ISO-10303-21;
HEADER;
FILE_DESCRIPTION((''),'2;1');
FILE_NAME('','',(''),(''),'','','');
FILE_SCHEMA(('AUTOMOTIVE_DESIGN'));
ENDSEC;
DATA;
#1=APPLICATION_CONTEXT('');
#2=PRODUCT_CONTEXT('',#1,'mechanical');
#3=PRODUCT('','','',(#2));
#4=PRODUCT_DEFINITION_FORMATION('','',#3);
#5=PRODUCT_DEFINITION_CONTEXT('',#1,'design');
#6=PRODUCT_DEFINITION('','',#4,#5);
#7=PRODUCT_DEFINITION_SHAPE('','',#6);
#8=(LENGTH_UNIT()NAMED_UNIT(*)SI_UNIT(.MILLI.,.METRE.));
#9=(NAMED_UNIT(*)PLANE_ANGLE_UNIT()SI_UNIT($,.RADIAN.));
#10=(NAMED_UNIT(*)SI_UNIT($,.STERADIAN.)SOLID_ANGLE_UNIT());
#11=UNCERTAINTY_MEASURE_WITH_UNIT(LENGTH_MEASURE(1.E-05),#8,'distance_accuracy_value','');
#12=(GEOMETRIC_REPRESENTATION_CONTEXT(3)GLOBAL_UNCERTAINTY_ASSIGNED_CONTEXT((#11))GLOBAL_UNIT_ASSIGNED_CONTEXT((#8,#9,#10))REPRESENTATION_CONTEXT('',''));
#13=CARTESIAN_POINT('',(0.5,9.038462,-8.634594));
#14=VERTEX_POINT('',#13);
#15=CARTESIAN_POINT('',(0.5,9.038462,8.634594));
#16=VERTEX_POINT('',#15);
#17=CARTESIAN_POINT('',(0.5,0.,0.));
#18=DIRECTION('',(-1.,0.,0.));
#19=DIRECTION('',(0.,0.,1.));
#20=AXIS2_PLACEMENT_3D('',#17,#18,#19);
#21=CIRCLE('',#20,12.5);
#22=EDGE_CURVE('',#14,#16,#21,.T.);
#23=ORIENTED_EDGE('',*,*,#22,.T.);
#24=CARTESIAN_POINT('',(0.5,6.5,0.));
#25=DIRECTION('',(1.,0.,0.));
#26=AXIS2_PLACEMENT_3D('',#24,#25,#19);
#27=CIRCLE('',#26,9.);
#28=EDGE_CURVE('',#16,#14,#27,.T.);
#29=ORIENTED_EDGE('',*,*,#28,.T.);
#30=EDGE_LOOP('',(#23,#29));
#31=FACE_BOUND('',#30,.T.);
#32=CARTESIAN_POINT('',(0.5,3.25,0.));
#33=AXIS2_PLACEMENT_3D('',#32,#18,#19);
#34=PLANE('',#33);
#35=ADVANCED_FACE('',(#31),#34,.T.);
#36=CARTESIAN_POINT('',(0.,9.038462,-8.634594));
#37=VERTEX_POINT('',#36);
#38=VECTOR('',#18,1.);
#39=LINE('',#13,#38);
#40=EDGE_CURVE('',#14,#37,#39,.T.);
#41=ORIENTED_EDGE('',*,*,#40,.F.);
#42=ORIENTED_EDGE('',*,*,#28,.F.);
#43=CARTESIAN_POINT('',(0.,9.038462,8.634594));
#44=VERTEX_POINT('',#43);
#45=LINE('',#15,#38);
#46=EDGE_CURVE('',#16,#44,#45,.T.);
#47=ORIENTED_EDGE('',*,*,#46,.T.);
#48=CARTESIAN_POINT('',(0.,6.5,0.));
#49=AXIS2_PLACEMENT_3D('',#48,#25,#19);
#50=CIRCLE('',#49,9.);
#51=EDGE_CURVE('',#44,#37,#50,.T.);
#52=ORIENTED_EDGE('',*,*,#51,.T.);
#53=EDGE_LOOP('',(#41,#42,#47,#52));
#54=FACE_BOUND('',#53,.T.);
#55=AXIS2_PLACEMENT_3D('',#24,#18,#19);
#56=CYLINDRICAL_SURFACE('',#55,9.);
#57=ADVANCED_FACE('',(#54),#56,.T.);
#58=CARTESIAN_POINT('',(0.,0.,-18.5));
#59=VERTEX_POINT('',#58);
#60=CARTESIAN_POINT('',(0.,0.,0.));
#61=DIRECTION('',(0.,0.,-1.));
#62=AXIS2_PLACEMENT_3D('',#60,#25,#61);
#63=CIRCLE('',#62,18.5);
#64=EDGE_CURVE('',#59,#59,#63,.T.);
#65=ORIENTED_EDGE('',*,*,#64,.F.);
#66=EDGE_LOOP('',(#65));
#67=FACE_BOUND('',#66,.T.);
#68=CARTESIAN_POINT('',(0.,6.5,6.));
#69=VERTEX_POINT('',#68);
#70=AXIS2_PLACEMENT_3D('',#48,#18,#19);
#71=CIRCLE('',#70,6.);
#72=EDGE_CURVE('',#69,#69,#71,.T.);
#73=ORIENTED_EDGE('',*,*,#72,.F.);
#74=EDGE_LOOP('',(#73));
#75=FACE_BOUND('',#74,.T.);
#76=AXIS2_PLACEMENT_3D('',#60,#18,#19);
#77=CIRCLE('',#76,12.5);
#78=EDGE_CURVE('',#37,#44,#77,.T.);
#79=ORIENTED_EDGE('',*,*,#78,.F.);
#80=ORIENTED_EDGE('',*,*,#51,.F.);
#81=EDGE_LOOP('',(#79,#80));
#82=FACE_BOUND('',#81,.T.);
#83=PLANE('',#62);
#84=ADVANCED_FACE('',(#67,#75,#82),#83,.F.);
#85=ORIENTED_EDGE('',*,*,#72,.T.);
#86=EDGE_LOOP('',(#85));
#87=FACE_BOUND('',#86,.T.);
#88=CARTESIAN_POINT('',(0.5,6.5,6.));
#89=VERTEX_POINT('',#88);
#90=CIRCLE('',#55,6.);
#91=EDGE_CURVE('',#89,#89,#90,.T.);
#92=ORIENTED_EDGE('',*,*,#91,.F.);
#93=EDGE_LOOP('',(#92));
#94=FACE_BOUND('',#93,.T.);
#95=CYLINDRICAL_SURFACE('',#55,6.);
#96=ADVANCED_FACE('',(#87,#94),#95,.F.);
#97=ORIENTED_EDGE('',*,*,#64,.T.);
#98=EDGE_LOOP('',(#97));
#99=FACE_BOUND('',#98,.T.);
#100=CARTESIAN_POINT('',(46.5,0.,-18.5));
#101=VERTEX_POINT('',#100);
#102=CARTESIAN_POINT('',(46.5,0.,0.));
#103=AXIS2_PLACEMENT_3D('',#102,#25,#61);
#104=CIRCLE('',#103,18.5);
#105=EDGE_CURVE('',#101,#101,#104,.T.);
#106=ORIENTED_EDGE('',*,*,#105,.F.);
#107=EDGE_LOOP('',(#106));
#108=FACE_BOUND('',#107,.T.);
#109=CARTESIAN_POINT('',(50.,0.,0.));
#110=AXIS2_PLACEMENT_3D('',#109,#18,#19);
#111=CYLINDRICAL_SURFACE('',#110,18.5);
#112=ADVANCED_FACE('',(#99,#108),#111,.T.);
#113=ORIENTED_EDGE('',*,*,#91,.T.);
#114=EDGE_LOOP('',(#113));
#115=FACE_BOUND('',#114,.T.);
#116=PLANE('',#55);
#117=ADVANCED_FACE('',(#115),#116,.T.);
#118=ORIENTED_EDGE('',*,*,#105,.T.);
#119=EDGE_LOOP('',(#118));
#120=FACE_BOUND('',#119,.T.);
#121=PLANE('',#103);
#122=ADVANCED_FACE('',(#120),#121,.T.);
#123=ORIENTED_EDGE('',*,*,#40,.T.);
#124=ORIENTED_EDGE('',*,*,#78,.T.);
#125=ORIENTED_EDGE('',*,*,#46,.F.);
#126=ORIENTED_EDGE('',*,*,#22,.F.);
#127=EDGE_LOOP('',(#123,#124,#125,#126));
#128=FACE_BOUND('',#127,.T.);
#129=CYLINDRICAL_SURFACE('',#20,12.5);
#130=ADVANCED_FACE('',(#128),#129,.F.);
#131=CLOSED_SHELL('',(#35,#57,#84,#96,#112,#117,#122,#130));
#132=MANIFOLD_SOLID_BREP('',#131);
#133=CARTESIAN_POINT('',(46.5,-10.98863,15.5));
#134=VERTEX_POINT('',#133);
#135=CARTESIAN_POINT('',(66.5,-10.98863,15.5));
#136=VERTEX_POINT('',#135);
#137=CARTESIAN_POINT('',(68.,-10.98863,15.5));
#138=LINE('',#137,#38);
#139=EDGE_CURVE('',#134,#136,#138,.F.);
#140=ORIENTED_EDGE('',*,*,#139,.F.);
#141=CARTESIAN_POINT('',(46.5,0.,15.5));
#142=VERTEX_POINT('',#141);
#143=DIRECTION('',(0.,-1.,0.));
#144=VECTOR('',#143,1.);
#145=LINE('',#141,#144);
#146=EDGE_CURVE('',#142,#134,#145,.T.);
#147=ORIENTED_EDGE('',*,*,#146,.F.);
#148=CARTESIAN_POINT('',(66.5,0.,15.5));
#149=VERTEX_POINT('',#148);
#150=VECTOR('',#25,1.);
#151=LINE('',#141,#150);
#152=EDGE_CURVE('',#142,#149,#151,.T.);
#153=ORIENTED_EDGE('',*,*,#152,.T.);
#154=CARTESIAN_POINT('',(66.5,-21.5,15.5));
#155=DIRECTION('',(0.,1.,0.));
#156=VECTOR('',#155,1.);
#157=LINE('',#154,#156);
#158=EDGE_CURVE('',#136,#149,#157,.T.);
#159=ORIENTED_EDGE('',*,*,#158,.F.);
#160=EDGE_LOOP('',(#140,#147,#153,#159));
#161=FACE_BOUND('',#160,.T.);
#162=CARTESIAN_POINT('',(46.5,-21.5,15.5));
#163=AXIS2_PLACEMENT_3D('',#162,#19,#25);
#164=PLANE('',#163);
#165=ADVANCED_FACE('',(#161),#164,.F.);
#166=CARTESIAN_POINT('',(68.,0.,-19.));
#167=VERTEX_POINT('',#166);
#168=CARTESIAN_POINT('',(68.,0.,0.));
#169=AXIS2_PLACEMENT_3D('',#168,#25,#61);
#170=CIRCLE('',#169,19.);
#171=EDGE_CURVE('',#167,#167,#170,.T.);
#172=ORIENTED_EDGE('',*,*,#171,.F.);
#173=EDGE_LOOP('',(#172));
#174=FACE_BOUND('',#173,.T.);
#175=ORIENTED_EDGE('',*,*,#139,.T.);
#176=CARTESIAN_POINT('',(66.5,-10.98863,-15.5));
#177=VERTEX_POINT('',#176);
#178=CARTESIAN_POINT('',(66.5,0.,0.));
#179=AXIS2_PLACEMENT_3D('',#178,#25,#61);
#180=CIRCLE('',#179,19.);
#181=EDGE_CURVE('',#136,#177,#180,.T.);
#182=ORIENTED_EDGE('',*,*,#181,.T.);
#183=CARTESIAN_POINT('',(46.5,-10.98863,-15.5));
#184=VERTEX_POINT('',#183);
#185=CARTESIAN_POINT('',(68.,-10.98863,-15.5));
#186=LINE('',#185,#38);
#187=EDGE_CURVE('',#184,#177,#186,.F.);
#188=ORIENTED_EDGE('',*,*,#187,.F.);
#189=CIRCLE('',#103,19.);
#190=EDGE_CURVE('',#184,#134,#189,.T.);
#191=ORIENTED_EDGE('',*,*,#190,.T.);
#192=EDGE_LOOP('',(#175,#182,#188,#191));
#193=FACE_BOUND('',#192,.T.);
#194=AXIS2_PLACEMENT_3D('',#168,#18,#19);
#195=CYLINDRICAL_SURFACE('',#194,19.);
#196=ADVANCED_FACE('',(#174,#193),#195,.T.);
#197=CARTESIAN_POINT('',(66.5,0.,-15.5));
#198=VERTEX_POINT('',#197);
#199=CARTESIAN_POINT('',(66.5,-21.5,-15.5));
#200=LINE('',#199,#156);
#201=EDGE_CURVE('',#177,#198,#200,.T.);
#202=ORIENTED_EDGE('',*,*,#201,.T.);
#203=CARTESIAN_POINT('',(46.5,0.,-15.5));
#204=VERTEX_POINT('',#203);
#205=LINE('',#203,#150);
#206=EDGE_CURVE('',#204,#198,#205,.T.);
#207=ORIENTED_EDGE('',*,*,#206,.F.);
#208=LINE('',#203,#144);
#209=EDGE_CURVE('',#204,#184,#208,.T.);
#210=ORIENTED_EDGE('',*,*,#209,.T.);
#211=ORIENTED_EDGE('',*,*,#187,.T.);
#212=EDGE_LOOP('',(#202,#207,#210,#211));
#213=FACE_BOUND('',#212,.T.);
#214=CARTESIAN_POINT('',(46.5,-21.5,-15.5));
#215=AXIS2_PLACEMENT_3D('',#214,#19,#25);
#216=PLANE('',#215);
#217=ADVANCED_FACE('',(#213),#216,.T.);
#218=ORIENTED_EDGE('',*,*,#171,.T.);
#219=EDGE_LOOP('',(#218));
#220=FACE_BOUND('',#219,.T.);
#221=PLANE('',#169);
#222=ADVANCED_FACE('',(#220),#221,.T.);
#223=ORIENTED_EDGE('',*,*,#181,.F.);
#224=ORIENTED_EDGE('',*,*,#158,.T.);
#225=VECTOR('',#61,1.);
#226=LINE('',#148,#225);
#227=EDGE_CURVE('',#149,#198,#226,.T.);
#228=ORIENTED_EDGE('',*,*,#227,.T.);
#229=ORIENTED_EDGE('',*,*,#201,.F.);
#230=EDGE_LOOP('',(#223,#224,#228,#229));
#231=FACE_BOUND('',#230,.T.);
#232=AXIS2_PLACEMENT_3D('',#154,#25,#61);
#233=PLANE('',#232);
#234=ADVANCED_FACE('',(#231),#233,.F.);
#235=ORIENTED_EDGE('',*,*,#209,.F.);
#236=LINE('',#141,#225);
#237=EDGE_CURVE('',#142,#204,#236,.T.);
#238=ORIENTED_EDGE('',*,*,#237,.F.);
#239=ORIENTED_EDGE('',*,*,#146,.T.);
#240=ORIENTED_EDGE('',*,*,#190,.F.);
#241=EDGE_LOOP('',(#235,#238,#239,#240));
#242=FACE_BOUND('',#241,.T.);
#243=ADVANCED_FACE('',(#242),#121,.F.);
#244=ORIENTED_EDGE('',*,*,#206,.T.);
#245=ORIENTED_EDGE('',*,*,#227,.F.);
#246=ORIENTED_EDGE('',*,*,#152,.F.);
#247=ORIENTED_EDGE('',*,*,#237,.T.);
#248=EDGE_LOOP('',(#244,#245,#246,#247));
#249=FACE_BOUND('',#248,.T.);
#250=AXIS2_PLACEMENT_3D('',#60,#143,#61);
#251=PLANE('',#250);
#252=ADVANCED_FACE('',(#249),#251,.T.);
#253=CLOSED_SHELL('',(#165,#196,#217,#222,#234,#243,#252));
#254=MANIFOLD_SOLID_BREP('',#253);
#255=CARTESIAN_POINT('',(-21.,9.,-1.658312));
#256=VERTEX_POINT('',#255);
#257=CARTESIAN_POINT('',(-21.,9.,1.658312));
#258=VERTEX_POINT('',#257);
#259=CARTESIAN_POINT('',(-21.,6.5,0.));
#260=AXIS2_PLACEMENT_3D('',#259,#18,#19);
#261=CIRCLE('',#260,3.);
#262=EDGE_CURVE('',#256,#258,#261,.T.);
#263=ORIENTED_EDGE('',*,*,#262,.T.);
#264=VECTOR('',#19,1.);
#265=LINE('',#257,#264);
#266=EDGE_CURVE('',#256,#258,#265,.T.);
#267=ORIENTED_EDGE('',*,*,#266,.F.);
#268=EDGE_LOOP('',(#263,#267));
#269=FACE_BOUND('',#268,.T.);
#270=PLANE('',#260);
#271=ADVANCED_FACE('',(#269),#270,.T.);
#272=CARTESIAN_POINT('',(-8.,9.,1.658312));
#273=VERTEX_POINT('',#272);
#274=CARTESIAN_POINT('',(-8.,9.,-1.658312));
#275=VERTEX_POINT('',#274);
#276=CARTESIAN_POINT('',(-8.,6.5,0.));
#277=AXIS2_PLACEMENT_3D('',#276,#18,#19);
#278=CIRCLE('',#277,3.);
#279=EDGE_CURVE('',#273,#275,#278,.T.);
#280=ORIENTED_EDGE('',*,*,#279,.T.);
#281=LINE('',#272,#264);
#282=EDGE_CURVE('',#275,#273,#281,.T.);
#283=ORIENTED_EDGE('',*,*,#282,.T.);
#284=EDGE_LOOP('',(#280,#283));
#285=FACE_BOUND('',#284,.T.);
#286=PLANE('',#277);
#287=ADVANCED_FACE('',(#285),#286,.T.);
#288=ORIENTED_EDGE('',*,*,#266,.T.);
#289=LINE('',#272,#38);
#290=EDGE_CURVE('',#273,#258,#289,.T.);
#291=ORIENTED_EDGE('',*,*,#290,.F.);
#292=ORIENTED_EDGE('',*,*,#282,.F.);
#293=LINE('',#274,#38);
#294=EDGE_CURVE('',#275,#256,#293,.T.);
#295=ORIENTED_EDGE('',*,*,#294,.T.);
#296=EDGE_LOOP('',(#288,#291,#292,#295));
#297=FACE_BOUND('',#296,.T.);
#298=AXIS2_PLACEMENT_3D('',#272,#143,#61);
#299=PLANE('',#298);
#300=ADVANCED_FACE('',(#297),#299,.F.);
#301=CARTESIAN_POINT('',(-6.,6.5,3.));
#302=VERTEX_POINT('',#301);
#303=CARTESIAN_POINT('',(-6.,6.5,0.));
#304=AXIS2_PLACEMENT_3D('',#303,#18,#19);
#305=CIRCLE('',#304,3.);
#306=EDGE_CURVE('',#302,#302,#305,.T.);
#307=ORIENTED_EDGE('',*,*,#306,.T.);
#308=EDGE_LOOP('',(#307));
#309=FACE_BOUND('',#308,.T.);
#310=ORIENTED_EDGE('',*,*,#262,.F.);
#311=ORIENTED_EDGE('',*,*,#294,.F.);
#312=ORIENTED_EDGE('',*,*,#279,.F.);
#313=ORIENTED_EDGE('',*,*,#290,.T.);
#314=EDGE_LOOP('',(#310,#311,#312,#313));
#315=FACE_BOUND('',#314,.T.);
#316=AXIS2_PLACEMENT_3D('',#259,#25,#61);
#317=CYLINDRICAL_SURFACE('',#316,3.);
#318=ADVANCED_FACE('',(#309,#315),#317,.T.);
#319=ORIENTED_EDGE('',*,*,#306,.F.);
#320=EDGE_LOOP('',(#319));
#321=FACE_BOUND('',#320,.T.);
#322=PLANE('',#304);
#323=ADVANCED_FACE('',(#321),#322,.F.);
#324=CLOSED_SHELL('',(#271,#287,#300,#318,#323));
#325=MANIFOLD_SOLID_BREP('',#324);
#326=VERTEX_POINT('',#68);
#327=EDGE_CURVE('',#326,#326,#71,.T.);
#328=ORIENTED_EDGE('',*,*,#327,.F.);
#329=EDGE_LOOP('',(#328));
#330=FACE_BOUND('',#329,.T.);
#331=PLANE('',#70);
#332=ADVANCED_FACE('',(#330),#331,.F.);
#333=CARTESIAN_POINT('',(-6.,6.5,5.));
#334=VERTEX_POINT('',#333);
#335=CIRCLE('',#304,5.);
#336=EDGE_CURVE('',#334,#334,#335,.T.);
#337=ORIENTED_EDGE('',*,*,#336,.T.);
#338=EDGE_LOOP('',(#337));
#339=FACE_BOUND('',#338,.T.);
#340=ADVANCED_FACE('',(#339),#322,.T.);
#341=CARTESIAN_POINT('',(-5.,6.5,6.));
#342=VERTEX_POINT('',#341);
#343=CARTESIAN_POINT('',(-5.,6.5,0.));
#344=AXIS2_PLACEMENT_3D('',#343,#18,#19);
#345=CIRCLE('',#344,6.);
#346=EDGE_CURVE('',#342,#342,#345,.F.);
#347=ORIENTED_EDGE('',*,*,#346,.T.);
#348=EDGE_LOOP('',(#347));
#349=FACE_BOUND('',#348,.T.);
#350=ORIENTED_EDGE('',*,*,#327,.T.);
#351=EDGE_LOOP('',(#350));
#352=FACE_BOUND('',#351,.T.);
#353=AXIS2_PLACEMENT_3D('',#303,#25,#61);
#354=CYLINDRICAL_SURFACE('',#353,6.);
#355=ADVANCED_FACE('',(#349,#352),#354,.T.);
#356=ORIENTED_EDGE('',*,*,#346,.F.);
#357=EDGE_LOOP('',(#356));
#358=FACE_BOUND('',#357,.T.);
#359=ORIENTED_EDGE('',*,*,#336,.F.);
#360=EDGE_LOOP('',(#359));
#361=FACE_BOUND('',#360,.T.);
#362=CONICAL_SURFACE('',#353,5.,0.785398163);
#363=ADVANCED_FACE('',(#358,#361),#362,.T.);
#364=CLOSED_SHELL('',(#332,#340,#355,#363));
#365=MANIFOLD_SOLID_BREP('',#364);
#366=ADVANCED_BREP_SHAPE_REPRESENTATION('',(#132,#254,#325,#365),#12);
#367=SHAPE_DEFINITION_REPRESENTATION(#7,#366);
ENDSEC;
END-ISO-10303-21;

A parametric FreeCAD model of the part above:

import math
import FreeCAD as App
import Part
import Sketcher
from FreeCAD import Vector
Q = App.Units.Quantity


def edges_at(feature, points):
    """Names of the edges that pass closest to the given points."""
    edges = feature.Shape.Edges
    near = lambda p: min(range(len(edges)), key=lambda i: edges[i].distToShape(Part.Vertex(*p))[0])
    return sorted({f"Edge{near(p) + 1}" for p in points})

doc = App.newDocument("Part")
params = doc.addObject("Spreadsheet::Sheet", "Params")
for row, (alias, value) in enumerate([
    ("sketch1_diameter", "37 mm"),
    ("pad1_length", "50 mm"),
    ("sketch2_diameter", "12 mm"),
    ("sketch2_radius", "9 mm"),
    ("sketch2_radius2", "12.5 mm"),
    ("pocket1_length", "0.5 mm"),
    ("sketch3_diameter", "37 mm"),
    ("pocket2_length", "3.5 mm"),
    ("sketch4_diameter", "12 mm"),
    ("pad2_length", "6 mm"),
    ("chamfer_size", "1 mm"),
    ("sketch5_diameter", "6 mm"),
    ("pad3_length", "15 mm"),
    ("sketch6_radius", "3 mm"),
    ("pocket3_length", "13 mm"),
    ("sketch7_diameter", "38 mm"),
    ("pad4_length", "21.5 mm"),
    ("sketch8_width", "20 mm"),
    ("sketch8_height", "31 mm"),
    ("pocket4_length", "21.5 mm"),
], start=1):
    params.set(f"A{row}", alias)
    params.set(f"B{row}", "=" + value)
    params.setAlias(f"B{row}", alias)

body = doc.addObject("PartDesign::Body", "Body")

# Sketch on YZ plane
sketch1 = body.newObject("Sketcher::SketchObject", "Sketch")
sketch1.AttachmentSupport = (doc.getObject("YZ_Plane"), [""])
sketch1.MapMode = "FlatFace"
sketch1.addGeometry(Part.Circle(Vector(0, 0, 0), Vector(0, 0, 1), 18.5), False)
sketch1.addConstraint(Sketcher.Constraint("Coincident", 0, 3, -1, 1))
sketch1.addConstraint(Sketcher.Constraint("Diameter", 0, Q("37 mm")))
sketch1.setExpression("Constraints[1]", "Params.sketch1_diameter")
pad1 = body.newObject("PartDesign::Pad", "Pad")
pad1.Profile = sketch1
pad1.setExpression("Length", "Params.pad1_length")

# Sketch on YZ plane
sketch2 = body.newObject("Sketcher::SketchObject", "Sketch001")
sketch2.AttachmentSupport = (doc.getObject("YZ_Plane"), [""])
sketch2.MapMode = "FlatFace"
sketch2.addGeometry(Part.Circle(Vector(6.5, 0, 0), Vector(0, 0, 1), 6), False)
sketch2.addGeometry(Part.ArcOfCircle(Part.Circle(Vector(0, 0, 0), Vector(0, 0, 1), 12.5), math.radians(43.690895), math.radians(316.309105)), False)
sketch2.addGeometry(Part.ArcOfCircle(Part.Circle(Vector(6.5, 0, 0), Vector(0, 0, 1), 9), math.radians(73.61733), math.radians(286.38267)), False)
sketch2.addConstraint(Sketcher.Constraint("Coincident", 1, 1, 2, 1))
sketch2.addConstraint(Sketcher.Constraint("Coincident", 2, 2, 1, 2))
sketch2.addConstraint(Sketcher.Constraint("Coincident", 1, 3, -1, 1))
sketch2.addConstraint(Sketcher.Constraint("Coincident", 2, 3, 0, 3))
sketch2.addConstraint(Sketcher.Constraint("PointOnObject", 0, 3, -1))
sketch2.addConstraint(Sketcher.Constraint("Diameter", 0, Q("12 mm")))
sketch2.addConstraint(Sketcher.Constraint("Radius", 2, Q("9 mm")))
sketch2.addConstraint(Sketcher.Constraint("Radius", 1, Q("12.5 mm")))
sketch2.addConstraint(Sketcher.Constraint("DistanceX", -1, 1, 0, 3, Q("6.5 mm")))
sketch2.setExpression("Constraints[5]", "Params.sketch2_diameter")
sketch2.setExpression("Constraints[6]", "Params.sketch2_radius")
sketch2.setExpression("Constraints[7]", "Params.sketch2_radius2")
pocket1 = body.newObject("PartDesign::Pocket", "Pocket")
pocket1.Profile = sketch2
pocket1.setExpression("Length", "Params.pocket1_length")
pocket1.Reversed = True

# Sketch on YZ plane
sketch3 = body.newObject("Sketcher::SketchObject", "Sketch002")
sketch3.AttachmentSupport = (doc.getObject("YZ_Plane"), [""])
sketch3.MapMode = "FlatFace"
sketch3.AttachmentOffset = App.Placement(Vector(0, 0, 46.5), App.Rotation())
sketch3.addGeometry(Part.Circle(Vector(0, 0, 0), Vector(0, 0, 1), 18.5), False)
sketch3.addConstraint(Sketcher.Constraint("Coincident", 0, 3, -1, 1))
sketch3.addConstraint(Sketcher.Constraint("Diameter", 0, Q("37 mm")))
sketch3.setExpression("Constraints[1]", "Params.sketch3_diameter")
pocket2 = body.newObject("PartDesign::Pocket", "Pocket001")
pocket2.Profile = sketch3
pocket2.setExpression("Length", "Params.pocket2_length")
pocket2.Reversed = True
body2 = doc.addObject("PartDesign::Body", "Body001")

# Sketch on YZ plane
sketch4 = body2.newObject("Sketcher::SketchObject", "Sketch003")
sketch4.AttachmentSupport = (doc.getObject("YZ_Plane001"), [""])
sketch4.MapMode = "FlatFace"
sketch4.addGeometry(Part.Circle(Vector(6.5, 0, 0), Vector(0, 0, 1), 6), False)
sketch4.addConstraint(Sketcher.Constraint("PointOnObject", 0, 3, -1))
sketch4.addConstraint(Sketcher.Constraint("Diameter", 0, Q("12 mm")))
sketch4.addConstraint(Sketcher.Constraint("DistanceX", -1, 1, 0, 3, Q("6.5 mm")))
sketch4.setExpression("Constraints[1]", "Params.sketch4_diameter")
pad2 = body2.newObject("PartDesign::Pad", "Pad001")
pad2.Profile = sketch4
pad2.setExpression("Length", "Params.pad2_length")
pad2.Reversed = True
doc.recompute()

chamfer = body2.newObject("PartDesign::Chamfer", "Chamfer")
chamfer.Base = (pad2, edges_at(pad2, [(-6, 6.5, -6)]))
chamfer.setExpression("Size", "Params.chamfer_size")
body3 = doc.addObject("PartDesign::Body", "Body002")

# Sketch on YZ plane
sketch5 = body3.newObject("Sketcher::SketchObject", "Sketch004")
sketch5.AttachmentSupport = (doc.getObject("YZ_Plane002"), [""])
sketch5.MapMode = "FlatFace"
sketch5.AttachmentOffset = App.Placement(Vector(0, 0, -6), App.Rotation())
sketch5.addGeometry(Part.Circle(Vector(6.5, 0, 0), Vector(0, 0, 1), 3), False)
sketch5.addConstraint(Sketcher.Constraint("PointOnObject", 0, 3, -1))
sketch5.addConstraint(Sketcher.Constraint("Diameter", 0, Q("6 mm")))
sketch5.addConstraint(Sketcher.Constraint("DistanceX", -1, 1, 0, 3, Q("6.5 mm")))
sketch5.setExpression("Constraints[1]", "Params.sketch5_diameter")
pad3 = body3.newObject("PartDesign::Pad", "Pad002")
pad3.Profile = sketch5
pad3.setExpression("Length", "Params.pad3_length")
pad3.Reversed = True

# Sketch on YZ plane
sketch6 = body3.newObject("Sketcher::SketchObject", "Sketch005")
sketch6.AttachmentSupport = (doc.getObject("YZ_Plane002"), [""])
sketch6.MapMode = "FlatFace"
sketch6.AttachmentOffset = App.Placement(Vector(0, 0, -21), App.Rotation())
sketch6.addGeometry(Part.LineSegment(Vector(9, -1.658312, 0), Vector(9, 1.658312, 0)), False)
sketch6.addGeometry(Part.ArcOfCircle(Part.Circle(Vector(6.5, 0, 0), Vector(0, 0, 1), 3), math.radians(-33.55731), math.radians(33.55731)), False)
sketch6.addConstraint(Sketcher.Constraint("Coincident", 0, 1, 1, 1))
sketch6.addConstraint(Sketcher.Constraint("Coincident", 1, 2, 0, 2))
sketch6.addConstraint(Sketcher.Constraint("Vertical", 0))
sketch6.addConstraint(Sketcher.Constraint("PointOnObject", 1, 3, -1))
sketch6.addConstraint(Sketcher.Constraint("Radius", 1, Q("3 mm")))
sketch6.addConstraint(Sketcher.Constraint("DistanceX", -1, 1, 0, 1, Q("9 mm")))
sketch6.addConstraint(Sketcher.Constraint("DistanceX", -1, 1, 1, 3, Q("6.5 mm")))
sketch6.setExpression("Constraints[4]", "Params.sketch6_radius")
pocket3 = body3.newObject("PartDesign::Pocket", "Pocket002")
pocket3.Profile = sketch6
pocket3.setExpression("Length", "Params.pocket3_length")
pocket3.Reversed = True
body4 = doc.addObject("PartDesign::Body", "Body003")

# Sketch on YZ plane
sketch7 = body4.newObject("Sketcher::SketchObject", "Sketch006")
sketch7.AttachmentSupport = (doc.getObject("YZ_Plane003"), [""])
sketch7.MapMode = "FlatFace"
sketch7.AttachmentOffset = App.Placement(Vector(0, 0, 46.5), App.Rotation())
sketch7.addGeometry(Part.Circle(Vector(0, 0, 0), Vector(0, 0, 1), 19), False)
sketch7.addConstraint(Sketcher.Constraint("Coincident", 0, 3, -1, 1))
sketch7.addConstraint(Sketcher.Constraint("Diameter", 0, Q("38 mm")))
sketch7.setExpression("Constraints[1]", "Params.sketch7_diameter")
pad4 = body4.newObject("PartDesign::Pad", "Pad003")
pad4.Profile = sketch7
pad4.setExpression("Length", "Params.pad4_length")

# Sketch on XZ plane
sketch8 = body4.newObject("Sketcher::SketchObject", "Sketch007")
sketch8.AttachmentSupport = (doc.getObject("XZ_Plane003"), [""])
sketch8.MapMode = "FlatFace"
sketch8.addGeometry(Part.LineSegment(Vector(46.5, -15.5, 0), Vector(46.5, 15.5, 0)), False)
sketch8.addGeometry(Part.LineSegment(Vector(46.5, 15.5, 0), Vector(66.5, 15.5, 0)), False)
sketch8.addGeometry(Part.LineSegment(Vector(66.5, 15.5, 0), Vector(66.5, -15.5, 0)), False)
sketch8.addGeometry(Part.LineSegment(Vector(66.5, -15.5, 0), Vector(46.5, -15.5, 0)), False)
sketch8.addConstraint(Sketcher.Constraint("Coincident", 0, 2, 1, 1))
sketch8.addConstraint(Sketcher.Constraint("Coincident", 1, 2, 2, 1))
sketch8.addConstraint(Sketcher.Constraint("Coincident", 2, 2, 3, 1))
sketch8.addConstraint(Sketcher.Constraint("Coincident", 3, 2, 0, 1))
sketch8.addConstraint(Sketcher.Constraint("Vertical", 0))
sketch8.addConstraint(Sketcher.Constraint("Horizontal", 1))
sketch8.addConstraint(Sketcher.Constraint("Vertical", 2))
sketch8.addConstraint(Sketcher.Constraint("Horizontal", 3))
sketch8.addConstraint(Sketcher.Constraint("DistanceX", 1, 1, 1, 2, Q("20 mm")))
sketch8.addConstraint(Sketcher.Constraint("DistanceY", 0, 1, 0, 2, Q("31 mm")))
sketch8.addConstraint(Sketcher.Constraint("DistanceX", -1, 1, 0, 2, Q("46.5 mm")))
sketch8.addConstraint(Sketcher.Constraint("DistanceY", -1, 1, 0, 2, Q("15.5 mm")))
sketch8.setExpression("Constraints[8]", "Params.sketch8_width")
sketch8.setExpression("Constraints[9]", "Params.sketch8_height")
pocket4 = body4.newObject("PartDesign::Pocket", "Pocket003")
pocket4.Profile = sketch8
pocket4.setExpression("Length", "Params.pocket4_length")
pocket4.Reversed = True

doc.recompute()
